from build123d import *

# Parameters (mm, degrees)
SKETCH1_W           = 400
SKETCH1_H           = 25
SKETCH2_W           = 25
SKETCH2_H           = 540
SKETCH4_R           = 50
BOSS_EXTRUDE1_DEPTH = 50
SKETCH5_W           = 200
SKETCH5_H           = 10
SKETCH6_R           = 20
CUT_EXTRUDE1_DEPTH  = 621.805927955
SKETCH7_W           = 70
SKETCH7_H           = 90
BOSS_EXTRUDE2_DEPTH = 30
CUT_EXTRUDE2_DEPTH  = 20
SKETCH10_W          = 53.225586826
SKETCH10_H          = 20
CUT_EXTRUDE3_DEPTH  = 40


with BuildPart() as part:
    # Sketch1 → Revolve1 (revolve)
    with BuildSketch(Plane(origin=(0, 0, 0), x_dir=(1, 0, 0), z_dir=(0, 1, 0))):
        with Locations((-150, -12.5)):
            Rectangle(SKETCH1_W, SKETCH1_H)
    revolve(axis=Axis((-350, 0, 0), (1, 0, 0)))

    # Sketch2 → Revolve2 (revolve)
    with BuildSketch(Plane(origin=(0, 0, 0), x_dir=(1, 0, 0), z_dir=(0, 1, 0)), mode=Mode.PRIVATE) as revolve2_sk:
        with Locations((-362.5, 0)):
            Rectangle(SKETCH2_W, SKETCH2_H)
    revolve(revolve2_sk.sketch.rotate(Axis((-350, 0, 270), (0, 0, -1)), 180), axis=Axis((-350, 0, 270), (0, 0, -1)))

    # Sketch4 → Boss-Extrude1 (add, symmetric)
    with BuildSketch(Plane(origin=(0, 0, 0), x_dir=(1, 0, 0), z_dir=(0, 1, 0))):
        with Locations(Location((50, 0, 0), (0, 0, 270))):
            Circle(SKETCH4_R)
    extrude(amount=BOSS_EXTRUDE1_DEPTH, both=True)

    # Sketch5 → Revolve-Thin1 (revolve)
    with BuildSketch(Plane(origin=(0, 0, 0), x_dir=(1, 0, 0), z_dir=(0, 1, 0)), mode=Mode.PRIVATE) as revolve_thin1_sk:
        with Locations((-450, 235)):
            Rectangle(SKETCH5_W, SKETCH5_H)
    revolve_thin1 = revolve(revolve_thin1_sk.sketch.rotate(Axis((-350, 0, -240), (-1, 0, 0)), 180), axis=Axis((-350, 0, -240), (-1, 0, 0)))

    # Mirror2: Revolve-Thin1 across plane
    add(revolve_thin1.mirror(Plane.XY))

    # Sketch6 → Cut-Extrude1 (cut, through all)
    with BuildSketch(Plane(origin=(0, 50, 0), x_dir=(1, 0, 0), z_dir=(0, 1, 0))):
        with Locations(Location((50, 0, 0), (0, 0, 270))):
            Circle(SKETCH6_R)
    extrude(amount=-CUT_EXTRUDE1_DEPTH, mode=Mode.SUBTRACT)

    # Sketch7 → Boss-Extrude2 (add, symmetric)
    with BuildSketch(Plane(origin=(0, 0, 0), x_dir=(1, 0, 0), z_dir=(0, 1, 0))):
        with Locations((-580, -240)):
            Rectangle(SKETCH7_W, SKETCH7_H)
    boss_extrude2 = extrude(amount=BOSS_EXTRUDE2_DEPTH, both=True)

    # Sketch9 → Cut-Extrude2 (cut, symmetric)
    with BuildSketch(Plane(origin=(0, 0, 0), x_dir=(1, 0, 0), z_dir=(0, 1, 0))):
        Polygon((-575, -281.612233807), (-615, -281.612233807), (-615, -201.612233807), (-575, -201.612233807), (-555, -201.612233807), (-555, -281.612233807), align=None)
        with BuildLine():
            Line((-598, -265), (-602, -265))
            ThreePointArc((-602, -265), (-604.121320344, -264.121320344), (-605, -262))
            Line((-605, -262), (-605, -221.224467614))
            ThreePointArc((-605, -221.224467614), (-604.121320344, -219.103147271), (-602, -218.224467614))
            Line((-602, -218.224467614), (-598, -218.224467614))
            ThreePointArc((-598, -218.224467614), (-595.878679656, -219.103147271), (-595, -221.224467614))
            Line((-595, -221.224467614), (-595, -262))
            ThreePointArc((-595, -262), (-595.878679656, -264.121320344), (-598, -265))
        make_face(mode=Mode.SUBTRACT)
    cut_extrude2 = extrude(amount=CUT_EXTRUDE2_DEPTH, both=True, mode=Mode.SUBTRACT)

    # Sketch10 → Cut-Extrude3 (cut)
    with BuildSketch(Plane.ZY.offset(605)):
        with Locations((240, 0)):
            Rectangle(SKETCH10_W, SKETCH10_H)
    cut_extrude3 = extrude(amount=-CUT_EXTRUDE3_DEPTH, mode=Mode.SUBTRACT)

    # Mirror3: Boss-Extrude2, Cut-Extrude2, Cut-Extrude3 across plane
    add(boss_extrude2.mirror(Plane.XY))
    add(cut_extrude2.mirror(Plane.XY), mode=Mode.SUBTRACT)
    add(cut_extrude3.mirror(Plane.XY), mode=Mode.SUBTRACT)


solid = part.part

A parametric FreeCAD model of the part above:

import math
import FreeCAD as App
import Part
import Sketcher
from FreeCAD import Vector


def add_polygon(sketch, points):
    """Adds a closed chain of lines whose ends are joined by coincident constraints."""
    first, n = sketch.GeometryCount, len(points)
    for a, b in zip(points, points[1:] + points[:1]):
        sketch.addGeometry(Part.LineSegment(App.Vector(*a, 0), App.Vector(*b, 0)), False)
    for i in range(n):
        sketch.addConstraint(Sketcher.Constraint("Coincident", first + i, 2, first + (i + 1) % n, 1))

doc = App.newDocument("Part")
params = doc.addObject("Spreadsheet::Sheet", "Params")
for row, (alias, value) in enumerate([
    ("sketch1_width", "400 mm"),
    ("sketch1_height", "25 mm"),
    ("revolution_angle", "360 deg"),
    ("sketch2_width", "25 mm"),
    ("sketch2_height", "540 mm"),
    ("revolution2_angle", "360 deg"),
    ("sketch3_diameter", "100 mm"),
    ("pad1_length", "100 mm"),
    ("sketch4_width", "200 mm"),
    ("sketch4_height", "10 mm"),
    ("revolution3_angle", "360 deg"),
    ("sketch5_diameter", "40 mm"),
    ("sketch6_width", "70 mm"),
    ("sketch6_height", "90 mm"),
    ("pad2_length", "60 mm"),
    ("sketch7_radius", "3 mm"),
    ("sketch7_width", "60 mm"),
    ("sketch7_width2", "4 mm"),
    ("sketch7_height", "80 mm"),
    ("pocket2_length", "40 mm"),
    ("sketch8_width", "20 mm"),
    ("pocket3_length", "40 mm"),
], start=1):
    params.set(f"A{row}", alias)
    params.set(f"B{row}", "=" + value)
    params.setAlias(f"B{row}", alias)

body = doc.addObject("PartDesign::Body", "Body")

sketch1 = doc.addObject("Sketcher::SketchObject", "Sketch")
body.addObject(sketch1)
sketch1.AttachmentSupport = (doc.XZ_Plane, [""])
sketch1.MapMode = "FlatFace"
add_polygon(sketch1, [(-350, 0), (-350, 25), (50, 25), (50, 0)])
sketch1.addConstraint([
    Sketcher.Constraint("Vertical", 0),
    Sketcher.Constraint("Horizontal", 1),
    Sketcher.Constraint("Vertical", 2),
    Sketcher.Constraint("Horizontal", 3),
    Sketcher.Constraint("PointOnObject", 2, 2, -1),
    Sketcher.Constraint("DistanceX", 1, 1, 1, 2, 400.0),
    Sketcher.Constraint("DistanceY", 0, 1, 0, 2, 25.0),
    Sketcher.Constraint("DistanceX", 0, 2, -1, 1, 350.0),
])
sketch1.setExpression("Constraints[9]", "Params.sketch1_width")
sketch1.setExpression("Constraints[10]", "Params.sketch1_height")
revolution = doc.addObject("PartDesign::Revolution", "Revolution")
body.addObject(revolution)
revolution.Profile = sketch1
revolution.ReferenceAxis = (sketch1, ["H_Axis"])
revolution.setExpression("Angle", "Params.revolution_angle")

sketch2 = doc.addObject("Sketcher::SketchObject", "Sketch001")
body.addObject(sketch2)
sketch2.AttachmentSupport = (doc.XZ_Plane, [""])
sketch2.MapMode = "FlatFace"
add_polygon(sketch2, [(-375, -270), (-375, 270), (-350, 270), (-350, -270)])
sketch2.addGeometry(Part.LineSegment(Vector(-350, 270, 0), Vector(-350, -270, 0)), True)
sketch2.addConstraint([
    Sketcher.Constraint("Vertical", 0),
    Sketcher.Constraint("Horizontal", 1),
    Sketcher.Constraint("Vertical", 2),
    Sketcher.Constraint("Horizontal", 3),
    Sketcher.Constraint("Vertical", 4),
    Sketcher.Constraint("Coincident", 4, 1, 1, 2),
    Sketcher.Constraint("Horizontal", 3, 2, 4, 2),
    Sketcher.Constraint("DistanceX", 1, 1, 1, 2, 25.0),
    Sketcher.Constraint("DistanceY", 0, 1, 0, 2, 540.0),
    Sketcher.Constraint("DistanceX", 0, 2, -1, 1, 375.0),
    Sketcher.Constraint("DistanceY", -1, 1, 0, 2, 270.0),
])
sketch2.setExpression("Constraints[11]", "Params.sketch2_width")
sketch2.setExpression("Constraints[12]", "Params.sketch2_height")
revolution2 = doc.addObject("PartDesign::Revolution", "Revolution001")
body.addObject(revolution2)
revolution2.Profile = sketch2
revolution2.ReferenceAxis = (sketch2, ["Axis0"])
revolution2.setExpression("Angle", "Params.revolution2_angle")

sketch3 = doc.addObject("Sketcher::SketchObject", "Sketch002")
body.addObject(sketch3)
sketch3.AttachmentSupport = (doc.XZ_Plane, [""])
sketch3.MapMode = "FlatFace"
sketch3.addGeometry(Part.Circle(Vector(50, 0, 0), Vector(0, 0, 1), 50), False)
sketch3.addConstraint([
    Sketcher.Constraint("PointOnObject", 0, 3, -1),
    Sketcher.Constraint("Diameter", 0, 100.0),
    Sketcher.Constraint("DistanceX", -1, 1, 0, 3, 50.0),
])
sketch3.setExpression("Constraints[1]", "Params.sketch3_diameter")
pad1 = doc.addObject("PartDesign::Pad", "Pad")
body.addObject(pad1)
pad1.Profile = sketch3
pad1.setExpression("Length", "Params.pad1_length")
pad1.Midplane = True

sketch4 = doc.addObject("Sketcher::SketchObject", "Sketch003")
body.addObject(sketch4)
sketch4.AttachmentSupport = (doc.XZ_Plane, [""])
sketch4.MapMode = "FlatFace"
add_polygon(sketch4, [(-550, -240), (-550, -230), (-350, -230), (-350, -240)])
sketch4.addGeometry(Part.LineSegment(Vector(-350, -240, 0), Vector(-550, -240, 0)), True)
sketch4.addConstraint([
    Sketcher.Constraint("Vertical", 0),
    Sketcher.Constraint("Horizontal", 1),
    Sketcher.Constraint("Vertical", 2),
    Sketcher.Constraint("Horizontal", 3),
    Sketcher.Constraint("Horizontal", 4),
    Sketcher.Constraint("Coincident", 4, 1, 2, 2),
    Sketcher.Constraint("Vertical", 0, 2, 4, 2),
    Sketcher.Constraint("DistanceX", 1, 1, 1, 2, 200.0),
    Sketcher.Constraint("DistanceY", 0, 1, 0, 2, 10.0),
    Sketcher.Constraint("DistanceX", 0, 2, -1, 1, 550.0),
    Sketcher.Constraint("DistanceY", 0, 2, -1, 1, 230.0),
])
sketch4.setExpression("Constraints[11]", "Params.sketch4_width")
sketch4.setExpression("Constraints[12]", "Params.sketch4_height")
revolution3 = doc.addObject("PartDesign::Revolution", "Revolution002")
body.addObject(revolution3)
revolution3.Profile = sketch4
revolution3.ReferenceAxis = (sketch4, ["Axis0"])
revolution3.setExpression("Angle", "Params.revolution3_angle")
doc.recompute()

mirrored = doc.addObject("PartDesign::Mirrored", "Mirrored")
body.addObject(mirrored)
mirrored.Originals = [revolution3]
mirrored.MirrorPlane = (doc.XY_Plane, [""])
body.Tip = mirrored

sketch5 = doc.addObject("Sketcher::SketchObject", "Sketch004")
body.addObject(sketch5)
sketch5.AttachmentSupport = (doc.XZ_Plane, [""])
sketch5.MapMode = "FlatFace"
sketch5.AttachmentOffset = App.Placement(Vector(0, 0, -50), App.Rotation())
sketch5.addGeometry(Part.Circle(Vector(50, 0, 0), Vector(0, 0, 1), 20), False)
sketch5.addConstraint([
    Sketcher.Constraint("PointOnObject", 0, 3, -1),
    Sketcher.Constraint("Diameter", 0, 40.0),
    Sketcher.Constraint("DistanceX", -1, 1, 0, 3, 50.0),
])
sketch5.setExpression("Constraints[1]", "Params.sketch5_diameter")
pocket1 = doc.addObject("PartDesign::Pocket", "Pocket")
body.addObject(pocket1)
pocket1.Profile = sketch5
pocket1.Type = "ThroughAll"
pocket1.Reversed = True

sketch6 = doc.addObject("Sketcher::SketchObject", "Sketch005")
body.addObject(sketch6)
sketch6.AttachmentSupport = (doc.XZ_Plane, [""])
sketch6.MapMode = "FlatFace"
add_polygon(sketch6, [(-615, 195), (-615, 285), (-545, 285), (-545, 195)])
sketch6.addConstraint([
    Sketcher.Constraint("Vertical", 0),
    Sketcher.Constraint("Horizontal", 1),
    Sketcher.Constraint("Vertical", 2),
    Sketcher.Constraint("Horizontal", 3),
    Sketcher.Constraint("DistanceX", 1, 1, 1, 2, 70.0),
    Sketcher.Constraint("DistanceY", 0, 1, 0, 2, 90.0),
    Sketcher.Constraint("DistanceX", 0, 2, -1, 1, 615.0),
    Sketcher.Constraint("DistanceY", -1, 1, 0, 2, 285.0),
])
sketch6.setExpression("Constraints[8]", "Params.sketch6_width")
sketch6.setExpression("Constraints[9]", "Params.sketch6_height")
pad2 = doc.addObject("PartDesign::Pad", "Pad001")
body.addObject(pad2)
pad2.Profile = sketch6
pad2.setExpression("Length", "Params.pad2_length")
pad2.Midplane = True

sketch7 = doc.addObject("Sketcher::SketchObject", "Sketch006")
body.addObject(sketch7)
sketch7.AttachmentSupport = (doc.XZ_Plane, [""])
sketch7.MapMode = "FlatFace"
add_polygon(sketch7, [(-615, 281.6), (-555, 281.6), (-555, 201.6), (-615, 201.6)])
sketch7.addGeometry(Part.LineSegment(Vector(-598, 265, 0), Vector(-602, 265, 0)), False)
sketch7.addGeometry(Part.ArcOfCircle(Part.Circle(Vector(-602, 262, 0), Vector(0, 0, 1), 3), math.radians(90), math.radians(180)), False)
sketch7.addGeometry(Part.LineSegment(Vector(-605, 262, 0), Vector(-605, 221.2, 0)), False)
sketch7.addGeometry(Part.ArcOfCircle(Part.Circle(Vector(-602, 221.2, 0), Vector(0, 0, 1), 3), math.radians(180), math.radians(270)), False)
sketch7.addGeometry(Part.LineSegment(Vector(-602, 218.2, 0), Vector(-598, 218.2, 0)), False)
sketch7.addGeometry(Part.ArcOfCircle(Part.Circle(Vector(-598, 221.2, 0), Vector(0, 0, 1), 3), math.radians(-90), math.radians(0)), False)
sketch7.addGeometry(Part.LineSegment(Vector(-595, 221.2, 0), Vector(-595, 262, 0)), False)
sketch7.addGeometry(Part.ArcOfCircle(Part.Circle(Vector(-598, 262, 0), Vector(0, 0, 1), 3), math.radians(0), math.radians(90)), False)
sketch7.addConstraint([
    Sketcher.Constraint("Tangent", 4, 2, 5, 1),
    Sketcher.Constraint("Tangent", 5, 2, 6, 1),
    Sketcher.Constraint("Tangent", 6, 2, 7, 1),
    Sketcher.Constraint("Tangent", 7, 2, 8, 1),
    Sketcher.Constraint("Tangent", 8, 2, 9, 1),
    Sketcher.Constraint("Tangent", 9, 2, 10, 1),
    Sketcher.Constraint("Tangent", 10, 2, 11, 1),
    Sketcher.Constraint("Tangent", 11, 2, 4, 1),
    Sketcher.Constraint("Horizontal", 0),
    Sketcher.Constraint("Vertical", 1),
    Sketcher.Constraint("Horizontal", 2),
    Sketcher.Constraint("Vertical", 3),
    Sketcher.Constraint("Horizontal", 4),
    Sketcher.Constraint("Vertical", 6),
    Sketcher.Constraint("Horizontal", 8),
    Sketcher.Constraint("Vertical", 10),
    Sketcher.Constraint("Equal", 5, 7),
    Sketcher.Constraint("Equal", 7, 9),
    Sketcher.Constraint("Equal", 9, 11),
    Sketcher.Constraint("Radius", 5, 3.0),
    Sketcher.Constraint("DistanceX", 0, 1, 0, 2, 60.0),
    Sketcher.Constraint("DistanceX", 4, 2, 4, 1, 4.0),
    Sketcher.Constraint("DistanceY", 1, 2, 1, 1, 80.0),
    Sketcher.Constraint("DistanceX", 5, 3, -1, 1, 602.0),
    Sketcher.Constraint("DistanceY", -1, 1, 5, 3, 262.0),
    Sketcher.Constraint("DistanceX", 0, 2, -1, 1, 555.0),
    Sketcher.Constraint("DistanceY", 6, 2, 6, 1, 40.775532),
    Sketcher.Constraint("DistanceY", -1, 1, 0, 2, 281.612234),
])
sketch7.setExpression("Constraints[23]", "Params.sketch7_radius")
sketch7.setExpression("Constraints[24]", "Params.sketch7_width")
sketch7.setExpression("Constraints[25]", "Params.sketch7_width2")
sketch7.setExpression("Constraints[26]", "Params.sketch7_height")
pocket2 = doc.addObject("PartDesign::Pocket", "Pocket001")
body.addObject(pocket2)
pocket2.Profile = sketch7
pocket2.setExpression("Length", "Params.pocket2_length")
pocket2.Midplane = True

sketch8 = doc.addObject("Sketcher::SketchObject", "Sketch007")
body.addObject(sketch8)
sketch8.AttachmentSupport = (doc.YZ_Plane, [""])
sketch8.MapMode = "FlatFace"
sketch8.AttachmentOffset = App.Placement(Vector(0, 0, -605), App.Rotation())
add_polygon(sketch8, [(10, 213), (-10, 213), (-10, 267), (10, 267)])
sketch8.addConstraint([
    Sketcher.Constraint("Horizontal", 0),
    Sketcher.Constraint("Vertical", 1),
    Sketcher.Constraint("Horizontal", 2),
    Sketcher.Constraint("Vertical", 3),
    Sketcher.Constraint("DistanceX", 0, 2, 0, 1, 20.0),
    Sketcher.Constraint("DistanceX", 0, 2, -1, 1, 10.0),
    Sketcher.Constraint("DistanceY", 1, 1, 1, 2, 53.225587),
    Sketcher.Constraint("DistanceY", -1, 1, 0, 2, 213.387207),
])
sketch8.setExpression("Constraints[8]", "Params.sketch8_width")
pocket3 = doc.addObject("PartDesign::Pocket", "Pocket002")
body.addObject(pocket3)
pocket3.Profile = sketch8
pocket3.setExpression("Length", "Params.pocket3_length")
pocket3.Reversed = True
doc.recompute()

mirrored2 = doc.addObject("PartDesign::Mirrored", "Mirrored001")
body.addObject(mirrored2)
mirrored2.Originals = [pad2, pocket2, pocket3]
mirrored2.MirrorPlane = (doc.XY_Plane, [""])
body.Tip = mirrored2

doc.recompute()
